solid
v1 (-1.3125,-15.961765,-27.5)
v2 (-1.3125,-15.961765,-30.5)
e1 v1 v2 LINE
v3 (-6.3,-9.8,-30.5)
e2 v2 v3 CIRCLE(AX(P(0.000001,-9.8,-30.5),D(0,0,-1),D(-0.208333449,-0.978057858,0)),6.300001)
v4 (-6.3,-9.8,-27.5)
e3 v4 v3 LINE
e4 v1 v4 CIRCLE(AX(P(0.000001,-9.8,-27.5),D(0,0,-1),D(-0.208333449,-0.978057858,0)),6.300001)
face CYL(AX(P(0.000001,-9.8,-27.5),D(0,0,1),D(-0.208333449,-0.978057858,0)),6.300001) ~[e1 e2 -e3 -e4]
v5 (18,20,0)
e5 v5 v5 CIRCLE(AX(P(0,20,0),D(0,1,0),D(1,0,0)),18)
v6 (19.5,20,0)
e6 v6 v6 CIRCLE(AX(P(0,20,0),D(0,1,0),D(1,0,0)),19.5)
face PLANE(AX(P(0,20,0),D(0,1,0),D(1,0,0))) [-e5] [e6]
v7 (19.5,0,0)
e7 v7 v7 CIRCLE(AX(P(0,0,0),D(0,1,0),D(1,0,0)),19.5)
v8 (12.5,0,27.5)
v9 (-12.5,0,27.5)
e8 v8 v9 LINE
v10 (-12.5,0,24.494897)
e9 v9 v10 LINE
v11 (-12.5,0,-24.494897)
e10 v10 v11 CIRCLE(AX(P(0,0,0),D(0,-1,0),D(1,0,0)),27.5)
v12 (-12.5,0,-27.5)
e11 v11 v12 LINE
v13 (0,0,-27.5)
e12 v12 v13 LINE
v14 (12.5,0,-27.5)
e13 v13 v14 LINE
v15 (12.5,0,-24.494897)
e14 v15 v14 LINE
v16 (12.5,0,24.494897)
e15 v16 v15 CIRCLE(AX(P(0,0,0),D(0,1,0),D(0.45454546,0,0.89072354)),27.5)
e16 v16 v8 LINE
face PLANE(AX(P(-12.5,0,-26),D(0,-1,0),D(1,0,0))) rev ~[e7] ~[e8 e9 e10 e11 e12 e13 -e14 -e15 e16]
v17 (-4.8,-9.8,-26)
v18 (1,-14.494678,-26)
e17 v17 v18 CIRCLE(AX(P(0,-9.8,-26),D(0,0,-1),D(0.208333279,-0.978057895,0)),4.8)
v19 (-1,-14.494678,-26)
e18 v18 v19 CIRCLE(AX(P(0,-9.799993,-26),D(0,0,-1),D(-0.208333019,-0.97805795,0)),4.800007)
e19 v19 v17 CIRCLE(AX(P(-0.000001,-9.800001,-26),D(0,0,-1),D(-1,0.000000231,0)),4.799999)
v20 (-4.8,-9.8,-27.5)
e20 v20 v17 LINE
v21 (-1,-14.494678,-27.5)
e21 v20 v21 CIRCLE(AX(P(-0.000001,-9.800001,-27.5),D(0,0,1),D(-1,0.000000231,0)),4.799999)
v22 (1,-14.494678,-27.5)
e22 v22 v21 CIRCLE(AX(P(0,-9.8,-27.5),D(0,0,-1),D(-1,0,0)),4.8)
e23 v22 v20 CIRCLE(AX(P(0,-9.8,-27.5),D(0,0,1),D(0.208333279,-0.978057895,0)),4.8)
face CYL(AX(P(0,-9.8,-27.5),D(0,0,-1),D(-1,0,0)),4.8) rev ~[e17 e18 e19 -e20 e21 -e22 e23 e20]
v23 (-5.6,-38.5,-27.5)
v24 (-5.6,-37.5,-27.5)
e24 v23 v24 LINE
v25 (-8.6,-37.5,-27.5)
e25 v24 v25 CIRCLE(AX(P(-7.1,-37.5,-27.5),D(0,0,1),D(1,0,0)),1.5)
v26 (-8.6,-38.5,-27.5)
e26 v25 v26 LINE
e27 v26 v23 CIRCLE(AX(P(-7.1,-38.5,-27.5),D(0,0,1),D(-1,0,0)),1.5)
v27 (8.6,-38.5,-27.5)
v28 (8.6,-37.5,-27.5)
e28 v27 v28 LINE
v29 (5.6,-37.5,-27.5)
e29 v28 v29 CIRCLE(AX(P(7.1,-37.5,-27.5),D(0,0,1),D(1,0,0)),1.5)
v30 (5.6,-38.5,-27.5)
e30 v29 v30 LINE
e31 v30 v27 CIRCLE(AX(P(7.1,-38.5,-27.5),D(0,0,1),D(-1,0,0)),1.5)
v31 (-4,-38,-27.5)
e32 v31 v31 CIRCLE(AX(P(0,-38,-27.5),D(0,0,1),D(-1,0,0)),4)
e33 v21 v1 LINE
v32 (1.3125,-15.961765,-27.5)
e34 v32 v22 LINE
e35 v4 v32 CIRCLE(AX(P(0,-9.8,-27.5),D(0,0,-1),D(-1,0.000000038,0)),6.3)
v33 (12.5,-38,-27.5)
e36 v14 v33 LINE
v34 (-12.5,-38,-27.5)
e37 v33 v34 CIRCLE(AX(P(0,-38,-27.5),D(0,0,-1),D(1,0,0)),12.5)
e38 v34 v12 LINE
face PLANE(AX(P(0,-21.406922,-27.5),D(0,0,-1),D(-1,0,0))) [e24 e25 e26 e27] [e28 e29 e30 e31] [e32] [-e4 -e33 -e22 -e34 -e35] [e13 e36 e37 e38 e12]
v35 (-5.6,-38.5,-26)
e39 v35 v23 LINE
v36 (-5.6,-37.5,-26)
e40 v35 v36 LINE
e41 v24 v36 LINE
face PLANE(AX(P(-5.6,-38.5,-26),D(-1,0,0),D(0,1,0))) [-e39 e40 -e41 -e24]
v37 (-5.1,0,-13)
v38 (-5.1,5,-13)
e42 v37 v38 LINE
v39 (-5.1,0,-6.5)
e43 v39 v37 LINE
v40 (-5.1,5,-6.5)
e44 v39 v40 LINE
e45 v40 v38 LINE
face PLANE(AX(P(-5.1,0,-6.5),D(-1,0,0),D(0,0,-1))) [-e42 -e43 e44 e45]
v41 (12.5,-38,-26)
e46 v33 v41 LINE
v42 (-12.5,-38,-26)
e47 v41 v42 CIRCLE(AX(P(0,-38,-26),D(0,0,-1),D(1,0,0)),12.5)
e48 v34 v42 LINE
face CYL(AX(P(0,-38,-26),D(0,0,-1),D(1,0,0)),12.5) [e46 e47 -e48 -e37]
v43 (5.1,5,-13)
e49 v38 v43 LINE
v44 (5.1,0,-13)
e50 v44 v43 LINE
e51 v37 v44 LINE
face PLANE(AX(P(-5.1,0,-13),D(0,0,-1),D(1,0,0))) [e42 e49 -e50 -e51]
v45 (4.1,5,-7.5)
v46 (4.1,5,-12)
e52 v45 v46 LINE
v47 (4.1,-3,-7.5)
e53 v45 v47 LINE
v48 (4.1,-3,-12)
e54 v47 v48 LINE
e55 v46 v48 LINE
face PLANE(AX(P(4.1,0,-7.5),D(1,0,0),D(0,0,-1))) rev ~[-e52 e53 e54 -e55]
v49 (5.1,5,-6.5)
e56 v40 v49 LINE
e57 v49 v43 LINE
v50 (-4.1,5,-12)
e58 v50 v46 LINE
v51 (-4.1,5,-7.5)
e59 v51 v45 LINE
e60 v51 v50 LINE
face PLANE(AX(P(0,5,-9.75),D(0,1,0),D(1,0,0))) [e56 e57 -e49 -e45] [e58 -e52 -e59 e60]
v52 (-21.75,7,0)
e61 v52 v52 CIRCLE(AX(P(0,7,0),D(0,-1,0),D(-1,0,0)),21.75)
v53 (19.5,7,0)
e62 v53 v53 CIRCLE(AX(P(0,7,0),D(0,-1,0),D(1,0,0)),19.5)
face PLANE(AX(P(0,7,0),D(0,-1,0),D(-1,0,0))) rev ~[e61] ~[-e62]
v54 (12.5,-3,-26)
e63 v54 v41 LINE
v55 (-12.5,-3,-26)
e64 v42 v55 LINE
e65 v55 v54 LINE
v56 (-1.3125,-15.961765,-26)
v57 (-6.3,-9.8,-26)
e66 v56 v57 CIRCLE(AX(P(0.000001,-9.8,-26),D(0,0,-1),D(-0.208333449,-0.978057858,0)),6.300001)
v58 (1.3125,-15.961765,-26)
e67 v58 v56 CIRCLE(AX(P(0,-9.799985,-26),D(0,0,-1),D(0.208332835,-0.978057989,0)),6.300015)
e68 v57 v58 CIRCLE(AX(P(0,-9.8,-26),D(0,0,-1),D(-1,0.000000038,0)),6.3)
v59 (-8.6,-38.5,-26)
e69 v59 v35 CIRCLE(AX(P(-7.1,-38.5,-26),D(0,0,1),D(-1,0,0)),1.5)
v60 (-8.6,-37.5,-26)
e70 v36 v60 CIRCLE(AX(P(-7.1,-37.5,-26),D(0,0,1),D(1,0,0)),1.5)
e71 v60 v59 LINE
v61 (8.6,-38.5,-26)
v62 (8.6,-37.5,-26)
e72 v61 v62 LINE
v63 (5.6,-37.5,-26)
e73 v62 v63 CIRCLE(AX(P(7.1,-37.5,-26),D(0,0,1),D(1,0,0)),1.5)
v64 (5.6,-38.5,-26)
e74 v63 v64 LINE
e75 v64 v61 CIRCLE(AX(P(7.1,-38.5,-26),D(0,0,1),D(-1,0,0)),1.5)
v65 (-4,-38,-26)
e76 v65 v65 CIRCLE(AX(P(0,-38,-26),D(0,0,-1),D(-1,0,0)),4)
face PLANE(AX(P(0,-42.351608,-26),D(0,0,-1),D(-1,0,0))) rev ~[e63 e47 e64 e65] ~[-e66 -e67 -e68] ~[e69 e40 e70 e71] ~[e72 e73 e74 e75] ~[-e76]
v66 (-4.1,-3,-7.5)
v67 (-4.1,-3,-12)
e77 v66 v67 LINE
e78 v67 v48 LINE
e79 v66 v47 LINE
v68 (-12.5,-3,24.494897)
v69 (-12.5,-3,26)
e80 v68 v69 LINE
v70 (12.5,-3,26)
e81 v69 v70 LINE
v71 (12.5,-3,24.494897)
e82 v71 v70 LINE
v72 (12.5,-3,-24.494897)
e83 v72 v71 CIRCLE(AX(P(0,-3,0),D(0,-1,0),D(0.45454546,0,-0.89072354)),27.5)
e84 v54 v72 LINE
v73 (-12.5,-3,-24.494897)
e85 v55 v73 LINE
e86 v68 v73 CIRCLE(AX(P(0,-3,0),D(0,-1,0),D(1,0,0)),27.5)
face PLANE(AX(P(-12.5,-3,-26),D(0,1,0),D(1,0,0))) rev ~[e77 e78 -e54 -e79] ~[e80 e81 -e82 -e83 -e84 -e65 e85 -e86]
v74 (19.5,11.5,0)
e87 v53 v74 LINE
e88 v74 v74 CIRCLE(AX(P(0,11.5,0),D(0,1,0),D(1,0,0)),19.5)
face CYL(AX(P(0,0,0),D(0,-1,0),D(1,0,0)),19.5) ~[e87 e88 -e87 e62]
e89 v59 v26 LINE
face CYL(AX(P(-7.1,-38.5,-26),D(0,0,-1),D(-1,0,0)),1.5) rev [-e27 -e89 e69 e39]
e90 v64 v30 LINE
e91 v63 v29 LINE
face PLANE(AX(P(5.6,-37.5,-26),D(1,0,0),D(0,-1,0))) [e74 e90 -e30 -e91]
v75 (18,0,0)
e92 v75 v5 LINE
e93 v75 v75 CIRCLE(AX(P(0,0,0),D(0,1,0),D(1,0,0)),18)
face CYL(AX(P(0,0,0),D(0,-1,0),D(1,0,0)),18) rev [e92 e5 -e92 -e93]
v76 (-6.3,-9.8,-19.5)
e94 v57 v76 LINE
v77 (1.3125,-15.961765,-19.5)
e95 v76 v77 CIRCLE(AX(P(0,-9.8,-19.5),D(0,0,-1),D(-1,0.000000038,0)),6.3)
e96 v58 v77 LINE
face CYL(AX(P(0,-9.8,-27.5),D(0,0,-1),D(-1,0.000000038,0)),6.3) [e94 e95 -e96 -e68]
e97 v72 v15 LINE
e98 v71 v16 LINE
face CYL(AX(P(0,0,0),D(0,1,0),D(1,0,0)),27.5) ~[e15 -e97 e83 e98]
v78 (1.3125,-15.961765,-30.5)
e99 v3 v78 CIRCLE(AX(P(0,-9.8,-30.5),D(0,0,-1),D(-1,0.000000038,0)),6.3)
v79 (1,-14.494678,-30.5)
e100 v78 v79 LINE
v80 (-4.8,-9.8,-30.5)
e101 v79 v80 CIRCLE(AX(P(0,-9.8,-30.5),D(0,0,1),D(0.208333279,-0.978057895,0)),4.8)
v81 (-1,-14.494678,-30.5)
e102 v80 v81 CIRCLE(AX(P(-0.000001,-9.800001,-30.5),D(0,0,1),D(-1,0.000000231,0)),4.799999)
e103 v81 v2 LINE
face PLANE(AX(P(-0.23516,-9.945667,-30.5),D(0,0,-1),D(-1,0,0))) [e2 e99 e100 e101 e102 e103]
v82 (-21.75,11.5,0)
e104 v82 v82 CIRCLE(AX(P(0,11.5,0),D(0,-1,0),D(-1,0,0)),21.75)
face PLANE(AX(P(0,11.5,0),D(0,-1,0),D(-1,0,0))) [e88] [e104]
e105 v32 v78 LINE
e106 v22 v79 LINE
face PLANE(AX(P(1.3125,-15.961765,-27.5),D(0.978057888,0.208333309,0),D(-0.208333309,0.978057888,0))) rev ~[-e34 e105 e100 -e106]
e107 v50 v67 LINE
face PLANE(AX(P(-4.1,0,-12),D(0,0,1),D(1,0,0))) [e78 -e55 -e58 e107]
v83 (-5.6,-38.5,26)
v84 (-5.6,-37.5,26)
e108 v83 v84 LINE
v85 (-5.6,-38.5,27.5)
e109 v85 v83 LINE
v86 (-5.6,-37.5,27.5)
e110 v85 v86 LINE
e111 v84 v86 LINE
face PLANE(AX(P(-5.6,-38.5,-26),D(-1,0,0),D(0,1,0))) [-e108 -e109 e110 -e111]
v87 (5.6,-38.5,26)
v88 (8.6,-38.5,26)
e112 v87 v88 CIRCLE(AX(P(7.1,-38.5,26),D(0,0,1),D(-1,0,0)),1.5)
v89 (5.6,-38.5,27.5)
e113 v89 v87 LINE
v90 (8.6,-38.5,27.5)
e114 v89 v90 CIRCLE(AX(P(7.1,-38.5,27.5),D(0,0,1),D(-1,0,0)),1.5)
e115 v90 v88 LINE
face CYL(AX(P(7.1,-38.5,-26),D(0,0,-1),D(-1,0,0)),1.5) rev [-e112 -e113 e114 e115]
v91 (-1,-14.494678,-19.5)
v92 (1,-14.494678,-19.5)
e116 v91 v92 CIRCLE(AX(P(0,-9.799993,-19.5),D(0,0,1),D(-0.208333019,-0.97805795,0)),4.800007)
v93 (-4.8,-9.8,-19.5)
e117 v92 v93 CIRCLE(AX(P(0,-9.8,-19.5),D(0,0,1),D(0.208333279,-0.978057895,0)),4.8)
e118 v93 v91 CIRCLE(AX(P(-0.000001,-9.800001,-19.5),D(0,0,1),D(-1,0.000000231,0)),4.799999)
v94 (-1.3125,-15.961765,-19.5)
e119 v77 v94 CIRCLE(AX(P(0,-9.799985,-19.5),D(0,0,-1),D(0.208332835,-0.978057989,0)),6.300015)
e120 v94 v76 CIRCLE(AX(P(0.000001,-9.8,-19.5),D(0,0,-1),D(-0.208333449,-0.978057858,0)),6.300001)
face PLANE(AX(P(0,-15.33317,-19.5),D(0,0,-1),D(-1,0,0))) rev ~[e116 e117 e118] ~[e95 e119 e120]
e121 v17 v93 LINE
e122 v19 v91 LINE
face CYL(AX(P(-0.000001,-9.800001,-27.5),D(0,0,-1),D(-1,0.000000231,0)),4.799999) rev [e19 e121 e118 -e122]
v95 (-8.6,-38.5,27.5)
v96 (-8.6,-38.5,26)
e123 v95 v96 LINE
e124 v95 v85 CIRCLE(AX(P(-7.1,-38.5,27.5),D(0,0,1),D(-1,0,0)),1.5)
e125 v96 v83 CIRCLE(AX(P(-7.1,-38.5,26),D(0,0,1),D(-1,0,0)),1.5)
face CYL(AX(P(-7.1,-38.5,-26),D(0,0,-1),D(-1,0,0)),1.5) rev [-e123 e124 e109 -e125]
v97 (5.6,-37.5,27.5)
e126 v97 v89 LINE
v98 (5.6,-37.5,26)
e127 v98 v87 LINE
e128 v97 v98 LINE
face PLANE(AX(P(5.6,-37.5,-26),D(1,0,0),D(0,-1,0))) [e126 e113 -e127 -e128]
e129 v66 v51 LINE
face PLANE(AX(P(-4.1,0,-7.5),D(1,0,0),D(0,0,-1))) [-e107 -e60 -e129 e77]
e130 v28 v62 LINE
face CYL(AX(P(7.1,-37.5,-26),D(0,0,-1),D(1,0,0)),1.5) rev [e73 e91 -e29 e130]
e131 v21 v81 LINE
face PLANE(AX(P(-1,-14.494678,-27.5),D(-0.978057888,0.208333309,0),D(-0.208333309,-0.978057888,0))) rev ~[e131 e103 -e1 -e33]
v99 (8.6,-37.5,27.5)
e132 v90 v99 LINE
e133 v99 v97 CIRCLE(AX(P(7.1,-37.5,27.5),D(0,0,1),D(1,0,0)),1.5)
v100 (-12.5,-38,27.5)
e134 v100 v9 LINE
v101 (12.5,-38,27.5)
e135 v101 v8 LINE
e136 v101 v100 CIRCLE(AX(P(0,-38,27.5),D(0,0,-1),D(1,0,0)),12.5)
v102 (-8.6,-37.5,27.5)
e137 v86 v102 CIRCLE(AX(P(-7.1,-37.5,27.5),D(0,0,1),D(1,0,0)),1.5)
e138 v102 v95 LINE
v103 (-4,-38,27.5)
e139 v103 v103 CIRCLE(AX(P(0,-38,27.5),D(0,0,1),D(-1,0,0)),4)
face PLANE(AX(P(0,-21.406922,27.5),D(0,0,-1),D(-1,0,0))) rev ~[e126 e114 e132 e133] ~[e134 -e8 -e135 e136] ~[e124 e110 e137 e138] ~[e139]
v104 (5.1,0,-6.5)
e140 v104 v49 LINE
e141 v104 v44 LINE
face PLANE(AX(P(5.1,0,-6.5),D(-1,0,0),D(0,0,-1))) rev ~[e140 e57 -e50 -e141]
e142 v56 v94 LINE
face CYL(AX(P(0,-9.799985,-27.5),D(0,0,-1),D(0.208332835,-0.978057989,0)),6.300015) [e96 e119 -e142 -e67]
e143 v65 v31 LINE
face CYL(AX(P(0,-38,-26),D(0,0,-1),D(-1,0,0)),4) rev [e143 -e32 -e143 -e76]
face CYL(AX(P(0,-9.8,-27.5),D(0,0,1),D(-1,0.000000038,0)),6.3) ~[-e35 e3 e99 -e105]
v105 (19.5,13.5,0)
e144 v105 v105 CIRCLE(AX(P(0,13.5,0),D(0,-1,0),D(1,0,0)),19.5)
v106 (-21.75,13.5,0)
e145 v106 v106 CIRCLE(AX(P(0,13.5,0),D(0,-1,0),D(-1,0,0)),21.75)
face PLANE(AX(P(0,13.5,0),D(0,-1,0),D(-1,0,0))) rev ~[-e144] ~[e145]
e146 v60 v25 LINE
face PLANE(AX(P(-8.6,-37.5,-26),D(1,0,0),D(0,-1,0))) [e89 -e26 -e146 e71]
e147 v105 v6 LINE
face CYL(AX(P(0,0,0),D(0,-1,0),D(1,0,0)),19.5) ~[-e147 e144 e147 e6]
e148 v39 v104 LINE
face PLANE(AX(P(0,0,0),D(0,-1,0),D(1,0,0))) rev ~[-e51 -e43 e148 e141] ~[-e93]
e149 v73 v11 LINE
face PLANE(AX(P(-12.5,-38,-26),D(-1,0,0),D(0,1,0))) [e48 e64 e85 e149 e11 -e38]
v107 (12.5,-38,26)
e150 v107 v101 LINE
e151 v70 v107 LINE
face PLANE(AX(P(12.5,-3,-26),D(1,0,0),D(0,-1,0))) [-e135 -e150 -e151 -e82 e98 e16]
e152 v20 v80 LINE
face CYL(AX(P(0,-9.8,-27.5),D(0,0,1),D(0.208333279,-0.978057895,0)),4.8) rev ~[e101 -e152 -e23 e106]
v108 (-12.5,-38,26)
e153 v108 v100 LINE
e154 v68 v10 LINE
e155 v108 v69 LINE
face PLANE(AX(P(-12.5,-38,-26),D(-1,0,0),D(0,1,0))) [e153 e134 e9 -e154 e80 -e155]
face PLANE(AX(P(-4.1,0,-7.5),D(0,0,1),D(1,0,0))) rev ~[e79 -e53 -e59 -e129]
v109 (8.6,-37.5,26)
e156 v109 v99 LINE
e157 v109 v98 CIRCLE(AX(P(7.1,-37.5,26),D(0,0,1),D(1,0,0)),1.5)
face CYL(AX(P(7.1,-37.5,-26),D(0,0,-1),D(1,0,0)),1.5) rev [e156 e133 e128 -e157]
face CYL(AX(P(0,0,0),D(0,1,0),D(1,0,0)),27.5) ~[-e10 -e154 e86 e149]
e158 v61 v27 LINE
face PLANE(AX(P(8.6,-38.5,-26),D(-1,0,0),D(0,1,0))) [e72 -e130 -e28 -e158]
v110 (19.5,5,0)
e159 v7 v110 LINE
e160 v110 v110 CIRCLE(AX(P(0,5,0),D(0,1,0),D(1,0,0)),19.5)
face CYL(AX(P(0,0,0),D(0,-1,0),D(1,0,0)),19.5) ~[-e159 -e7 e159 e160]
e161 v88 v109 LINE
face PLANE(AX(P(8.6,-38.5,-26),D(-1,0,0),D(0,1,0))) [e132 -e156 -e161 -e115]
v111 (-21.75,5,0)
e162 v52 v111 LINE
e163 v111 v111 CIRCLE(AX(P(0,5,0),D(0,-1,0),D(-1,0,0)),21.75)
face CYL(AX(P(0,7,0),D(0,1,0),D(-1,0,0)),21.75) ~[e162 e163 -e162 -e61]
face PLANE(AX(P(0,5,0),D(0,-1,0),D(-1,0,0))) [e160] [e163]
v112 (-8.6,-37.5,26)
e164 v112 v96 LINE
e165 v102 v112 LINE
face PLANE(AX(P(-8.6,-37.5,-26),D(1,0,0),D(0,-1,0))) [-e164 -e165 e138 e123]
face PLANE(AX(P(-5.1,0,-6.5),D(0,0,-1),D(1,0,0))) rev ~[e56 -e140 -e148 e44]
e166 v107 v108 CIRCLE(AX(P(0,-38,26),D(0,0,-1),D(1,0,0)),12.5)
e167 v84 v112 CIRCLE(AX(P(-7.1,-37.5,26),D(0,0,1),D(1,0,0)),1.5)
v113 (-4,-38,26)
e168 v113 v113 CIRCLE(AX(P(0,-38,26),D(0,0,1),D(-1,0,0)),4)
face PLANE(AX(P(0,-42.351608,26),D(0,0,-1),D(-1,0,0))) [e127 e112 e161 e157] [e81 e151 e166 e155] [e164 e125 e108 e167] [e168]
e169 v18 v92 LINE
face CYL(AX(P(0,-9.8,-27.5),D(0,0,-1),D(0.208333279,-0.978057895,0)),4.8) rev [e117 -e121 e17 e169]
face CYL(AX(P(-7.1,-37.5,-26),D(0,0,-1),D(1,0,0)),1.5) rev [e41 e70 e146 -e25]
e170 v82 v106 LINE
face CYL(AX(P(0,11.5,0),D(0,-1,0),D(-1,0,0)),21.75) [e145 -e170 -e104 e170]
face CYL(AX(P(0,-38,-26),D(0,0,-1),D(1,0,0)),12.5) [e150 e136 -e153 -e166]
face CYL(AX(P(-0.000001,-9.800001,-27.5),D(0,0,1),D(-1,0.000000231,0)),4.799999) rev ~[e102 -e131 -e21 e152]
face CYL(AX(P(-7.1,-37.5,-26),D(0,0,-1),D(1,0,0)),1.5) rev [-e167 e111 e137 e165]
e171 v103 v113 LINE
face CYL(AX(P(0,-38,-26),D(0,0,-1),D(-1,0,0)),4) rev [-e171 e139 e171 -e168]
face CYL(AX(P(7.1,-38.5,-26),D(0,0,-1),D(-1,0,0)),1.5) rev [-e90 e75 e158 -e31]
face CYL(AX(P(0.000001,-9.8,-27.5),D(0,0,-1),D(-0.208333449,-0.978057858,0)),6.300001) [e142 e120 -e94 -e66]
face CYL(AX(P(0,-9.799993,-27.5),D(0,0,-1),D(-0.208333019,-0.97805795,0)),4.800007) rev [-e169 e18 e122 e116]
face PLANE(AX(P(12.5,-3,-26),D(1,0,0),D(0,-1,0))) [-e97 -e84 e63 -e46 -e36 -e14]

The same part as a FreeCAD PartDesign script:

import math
import FreeCAD as App
import Part
import Sketcher

doc = App.newDocument("Part")
body = doc.addObject("PartDesign::Body", "Body")

# Sketch on XZ plane
sketch1 = body.newObject("Sketcher::SketchObject", "Sketch")
sketch1.AttachmentSupport = (doc.getObject("XZ_Plane"), [""])
sketch1.MapMode = "FlatFace"
sketch1.addGeometry([
    Part.Circle(App.Vector(0, 0, 0), App.Vector(0, 0, 1), 20),
    Part.Circle(App.Vector(0, 0, 0), App.Vector(0, 0, 1), 18),
], False)
sketch1.addConstraint([
    Sketcher.Constraint("Coincident", 0, 3, -1, 1),
    Sketcher.Constraint("Coincident", 1, 3, -1, 1),
    Sketcher.Constraint("Diameter", 0, 39.0),
    Sketcher.Constraint("Diameter", 1, 36.0),
])
pad1 = body.newObject("PartDesign::Pad", "Pad")
pad1.Profile = sketch1
pad1.Length = 20
pad1.Reversed = True

# Sketch on XZ plane
sketch2 = body.newObject("Sketcher::SketchObject", "Sketch001")
sketch2.AttachmentSupport = (doc.getObject("XZ_Plane"), [""])
sketch2.MapMode = "FlatFace"
sketch2.addGeometry(Part.Circle(App.Vector(0, 0, 0), App.Vector(0, 0, 1), 28), False)
sketch2.addConstraint([
    Sketcher.Constraint("Coincident", 0, 3, -1, 1),
    Sketcher.Constraint("Diameter", 0, 55.0),
])
pad2 = body.newObject("PartDesign::Pad", "Pad001")
pad2.Profile = sketch2
pad2.Length = 3

# Sketch on XZ plane
sketch3 = body.newObject("Sketcher::SketchObject", "Sketch002")
sketch3.AttachmentSupport = (doc.getObject("XZ_Plane"), [""])
sketch3.MapMode = "FlatFace"
sketch3.AttachmentOffset = App.Placement(App.Vector(0, 0, -7), App.Rotation())
sketch3.addGeometry([
    Part.Circle(App.Vector(0, 0, 0), App.Vector(0, 0, 1), 22),
    Part.Circle(App.Vector(0, 0, 0), App.Vector(0, 0, 1), 20),
], False)
sketch3.addConstraint([
    Sketcher.Constraint("Coincident", 0, 3, -1, 1),
    Sketcher.Constraint("Coincident", 1, 3, -1, 1),
    Sketcher.Constraint("Diameter", 1, 39.0),
    Sketcher.Constraint("Diameter", 0, 43.5),
])
pad3 = body.newObject("PartDesign::Pad", "Pad002")
pad3.Profile = sketch3
pad3.Length = 2

# Sketch on XZ plane
sketch4 = body.newObject("Sketcher::SketchObject", "Sketch003")
sketch4.AttachmentSupport = (doc.getObject("XZ_Plane"), [""])
sketch4.MapMode = "FlatFace"
sketch4.AttachmentOffset = App.Placement(App.Vector(0, 0, -11.5), App.Rotation())
sketch4.addGeometry([
    Part.Circle(App.Vector(0, 0, 0), App.Vector(0, 0, 1), 22),
    Part.Circle(App.Vector(0, 0, 0), App.Vector(0, 0, 1), 20),
], False)
sketch4.addConstraint([
    Sketcher.Constraint("Coincident", 0, 3, -1, 1),
    Sketcher.Constraint("Coincident", 1, 3, -1, 1),
    Sketcher.Constraint("Diameter", 1, 39.0),
    Sketcher.Constraint("Diameter", 0, 43.5),
])
pad4 = body.newObject("PartDesign::Pad", "Pad003")
pad4.Profile = sketch4
pad4.Length = 2
pad4.Reversed = True

# Sketch on XZ plane
sketch5 = body.newObject("Sketcher::SketchObject", "Sketch004")
sketch5.AttachmentSupport = (doc.getObject("XZ_Plane"), [""])
sketch5.MapMode = "FlatFace"
sketch5.AttachmentOffset = App.Placement(App.Vector(0, 0, 3), App.Rotation())
sketch5.addGeometry([
    Part.LineSegment(App.Vector(-12.5, 27.5, 0), App.Vector(-12.5, 24.5, 0)),  # 0
    Part.ArcOfCircle(Part.Circle(App.Vector(0, 0, 0), App.Vector(0, 0, 1), 27.5), math.radians(90), math.radians(117)),  # 1
    Part.LineSegment(App.Vector(0, 27.5, 0), App.Vector(-12.5, 27.5, 0)),  # 2
    Part.ArcOfCircle(Part.Circle(App.Vector(0, 0, 0), App.Vector(0, 0, 1), 27.5), math.radians(-117.04), math.radians(-109.01)),  # 3
    Part.LineSegment(App.Vector(-12.5, -24.5, 0), App.Vector(-12.5, -26, 0)),  # 4
    Part.LineSegment(App.Vector(-12.5, -26, 0), App.Vector(-9, -26, 0)),  # 5
    Part.ArcOfCircle(Part.Circle(App.Vector(0, 0, 0), App.Vector(0, 0, 1), 27.5), math.radians(63), math.radians(90)),  # 6
    Part.LineSegment(App.Vector(12.5, 24.5, 0), App.Vector(12.5, 27.5, 0)),  # 7
    Part.LineSegment(App.Vector(12.5, 27.5, 0), App.Vector(0, 27.5, 0)),  # 8
    Part.LineSegment(App.Vector(12.5, -26, 0), App.Vector(12.5, -24.5, 0)),  # 9
    Part.ArcOfCircle(Part.Circle(App.Vector(0, 0, 0), App.Vector(0, 0, 1), 27.5), math.radians(-70.99), math.radians(-62.96)),  # 10
    Part.LineSegment(App.Vector(9, -26, 0), App.Vector(12.5, -26, 0)),  # 11
], False)
sketch5.addConstraint([
    Sketcher.Constraint("Coincident", 0, 2, 1, 2),
    Sketcher.Constraint("Tangent", 1, 1, 2, 1),
    Sketcher.Constraint("Coincident", 2, 2, 0, 1),
    Sketcher.Constraint("Coincident", 3, 1, 4, 1),
    Sketcher.Constraint("Coincident", 4, 2, 5, 1),
    Sketcher.Constraint("Coincident", 5, 2, 3, 2),
    Sketcher.Constraint("Coincident", 6, 1, 7, 1),
    Sketcher.Constraint("Coincident", 7, 2, 8, 1),
    Sketcher.Constraint("Tangent", 8, 2, 6, 2),
    Sketcher.Constraint("Coincident", 9, 2, 10, 2),
    Sketcher.Constraint("Coincident", 10, 1, 11, 1),
    Sketcher.Constraint("Coincident", 11, 2, 9, 1),
    Sketcher.Constraint("Vertical", 0),
    Sketcher.Constraint("Horizontal", 2),
    Sketcher.Constraint("Vertical", 4),
    Sketcher.Constraint("Horizontal", 5),
    Sketcher.Constraint("Vertical", 7),
    Sketcher.Constraint("Horizontal", 8),
    Sketcher.Constraint("Vertical", 9),
    Sketcher.Constraint("Horizontal", 11),
    Sketcher.Constraint("Coincident", 1, 3, -1, 1),
    Sketcher.Constraint("Coincident", 6, 3, -1, 1),
    Sketcher.Constraint("Coincident", 3, 3, 1, 3),
    Sketcher.Constraint("Coincident", 10, 3, 1, 3),
    Sketcher.Constraint("Equal", 1, 6),
    Sketcher.Constraint("Equal", 3, 10),
    Sketcher.Constraint("Symmetric", 3, 1, 6, 1, -1, 1),
    Sketcher.Constraint("Symmetric", 4, 2, 11, 2, -2),
    Sketcher.Constraint("Horizontal", 0, 2, 6, 1),
    Sketcher.Constraint("DistanceX", 2, 2, 2, 1, 12.5),
    Sketcher.Constraint("DistanceY", 4, 2, -1, 1, 26.0),
    Sketcher.Constraint("DistanceY", -1, 1, 1, 1, 27.5),
])
pad5 = body.newObject("PartDesign::Pad", "Pad004")
pad5.Profile = sketch5
pad5.Length = 3
pad5.Reversed = True

# Sketch on XY plane
sketch6 = body.newObject("Sketcher::SketchObject", "Sketch005")
sketch6.AttachmentSupport = (doc.getObject("XY_Plane"), [""])
sketch6.MapMode = "FlatFace"
sketch6.AttachmentOffset = App.Placement(App.Vector(0, 0, -26), App.Rotation())
sketch6.addGeometry([
    Part.LineSegment(App.Vector(-12.5, -38, 0), App.Vector(-12.5, 0, 0)),  # 0
    Part.LineSegment(App.Vector(-12.5, 0, 0), App.Vector(12.5, 0, 0)),  # 1
    Part.LineSegment(App.Vector(12.5, 0, 0), App.Vector(12.5, -38, 0)),  # 2
    Part.ArcOfCircle(Part.Circle(App.Vector(0, -38, 0), App.Vector(0, 0, 1), 12.5), math.radians(180), math.radians(360)),  # 3
    Part.ArcOfCircle(Part.Circle(App.Vector(7.1, -37.5, 0), App.Vector(0, 0, 1), 1.5), math.radians(0), math.radians(180)),  # 4
    Part.LineSegment(App.Vector(5.6, -37.5, 0), App.Vector(5.6, -38.5, 0)),  # 5
    Part.ArcOfCircle(Part.Circle(App.Vector(7.1, -38.5, 0), App.Vector(0, 0, 1), 1.5), math.radians(180), math.radians(360)),  # 6
    Part.LineSegment(App.Vector(8.6, -38.5, 0), App.Vector(8.6, -37.5, 0)),  # 7
    Part.Circle(App.Vector(0, -38, 0), App.Vector(0, 0, 1), 4),  # 8
    Part.ArcOfCircle(Part.Circle(App.Vector(-7.1, -37.5, 0), App.Vector(0, 0, 1), 1.5), math.radians(0), math.radians(180)),  # 9
    Part.LineSegment(App.Vector(-8.6, -37.5, 0), App.Vector(-8.6, -38.5, 0)),  # 10
    Part.ArcOfCircle(Part.Circle(App.Vector(-7.1, -38.5, 0), App.Vector(0, 0, 1), 1.5), math.radians(180), math.radians(360)),  # 11
    Part.LineSegment(App.Vector(-5.6, -38.5, 0), App.Vector(-5.6, -37.5, 0)),  # 12
], False)
sketch6.addConstraint([
    Sketcher.Constraint("Coincident", 0, 2, 1, 1),
    Sketcher.Constraint("Coincident", 1, 2, 2, 1),
    Sketcher.Constraint("Tangent", 2, 2, 3, 2),
    Sketcher.Constraint("Tangent", 3, 1, 0, 1),
    Sketcher.Constraint("Tangent", 4, 2, 5, 1),
    Sketcher.Constraint("Tangent", 5, 2, 6, 1),
    Sketcher.Constraint("Tangent", 6, 2, 7, 1),
    Sketcher.Constraint("Tangent", 7, 2, 4, 1),
    Sketcher.Constraint("Tangent", 9, 2, 10, 1),
    Sketcher.Constraint("Tangent", 10, 2, 11, 1),
    Sketcher.Constraint("Tangent", 11, 2, 12, 1),
    Sketcher.Constraint("Tangent", 12, 2, 9, 1),
    Sketcher.Constraint("Vertical", 0),
    Sketcher.Constraint("Horizontal", 1),
    Sketcher.Constraint("Vertical", 2),
    Sketcher.Constraint("Vertical", 5),
    Sketcher.Constraint("Vertical", 7),
    Sketcher.Constraint("Vertical", 10),
    Sketcher.Constraint("Vertical", 12),
    Sketcher.Constraint("Coincident", 8, 3, 3, 3),
    Sketcher.Constraint("Equal", 6, 9),
    Sketcher.Constraint("Symmetric", 0, 2, 1, 2, -1, 1),
    Sketcher.Constraint("Symmetric", 4, 3, 9, 3, -2),
    Sketcher.Constraint("Horizontal", 6, 3, 11, 3),
    Sketcher.Constraint("Diameter", 8, 8.0),
    Sketcher.Constraint("Radius", 3, 12.5),
    Sketcher.Constraint("Radius", 4, 1.5),
    Sketcher.Constraint("DistanceY", 0, 1, 0, 2, 38.0),
    Sketcher.Constraint("DistanceY", 5, 2, 5, 1, 1.0),
    Sketcher.Constraint("DistanceX", -1, 1, 4, 3, 7.1),
    Sketcher.Constraint("DistanceY", 4, 3, -1, 1, 37.5),
])
pad6 = body.newObject("PartDesign::Pad", "Pad005")
pad6.Profile = sketch6
pad6.Length = 1.5
pad6.Reversed = True

# Sketch on XY plane
sketch7 = body.newObject("Sketcher::SketchObject", "Sketch006")
sketch7.AttachmentSupport = (doc.getObject("XY_Plane"), [""])
sketch7.MapMode = "FlatFace"
sketch7.AttachmentOffset = App.Placement(App.Vector(0, 0, -26), App.Rotation())
sketch7.addGeometry([
    Part.LineSegment(App.Vector(-12.5, -38, 0), App.Vector(-12.5, -3, 0)),  # 0
    Part.LineSegment(App.Vector(-12.5, -3, 0), App.Vector(12.5, -3, 0)),  # 1
    Part.LineSegment(App.Vector(12.5, -3, 0), App.Vector(12.5, -38, 0)),  # 2
    Part.ArcOfCircle(Part.Circle(App.Vector(0, -38, 0), App.Vector(0, 0, 1), 12.5), math.radians(180), math.radians(360)),  # 3
    Part.ArcOfCircle(Part.Circle(App.Vector(7.1, -37.5, 0), App.Vector(0, 0, 1), 1.5), math.radians(0), math.radians(180)),  # 4
    Part.LineSegment(App.Vector(5.6, -37.5, 0), App.Vector(5.6, -38.5, 0)),  # 5
    Part.ArcOfCircle(Part.Circle(App.Vector(7.1, -38.5, 0), App.Vector(0, 0, 1), 1.5), math.radians(180), math.radians(360)),  # 6
    Part.LineSegment(App.Vector(8.6, -38.5, 0), App.Vector(8.6, -37.5, 0)),  # 7
    Part.Circle(App.Vector(0, -38, 0), App.Vector(0, 0, 1), 4),  # 8
    Part.ArcOfCircle(Part.Circle(App.Vector(-7.1, -37.5, 0), App.Vector(0, 0, 1), 1.5), math.radians(0), math.radians(180)),  # 9
    Part.LineSegment(App.Vector(-8.6, -37.5, 0), App.Vector(-8.6, -38.5, 0)),  # 10
    Part.ArcOfCircle(Part.Circle(App.Vector(-7.1, -38.5, 0), App.Vector(0, 0, 1), 1.5), math.radians(180), math.radians(360)),  # 11
    Part.LineSegment(App.Vector(-5.6, -38.5, 0), App.Vector(-5.6, -37.5, 0)),  # 12
], False)
sketch7.addConstraint([
    Sketcher.Constraint("Coincident", 0, 2, 1, 1),
    Sketcher.Constraint("Coincident", 1, 2, 2, 1),
    Sketcher.Constraint("Tangent", 2, 2, 3, 2),
    Sketcher.Constraint("Tangent", 3, 1, 0, 1),
    Sketcher.Constraint("Tangent", 4, 2, 5, 1),
    Sketcher.Constraint("Tangent", 5, 2, 6, 1),
    Sketcher.Constraint("Tangent", 6, 2, 7, 1),
    Sketcher.Constraint("Tangent", 7, 2, 4, 1),
    Sketcher.Constraint("Tangent", 9, 2, 10, 1),
    Sketcher.Constraint("Tangent", 10, 2, 11, 1),
    Sketcher.Constraint("Tangent", 11, 2, 12, 1),
    Sketcher.Constraint("Tangent", 12, 2, 9, 1),
    Sketcher.Constraint("Vertical", 0),
    Sketcher.Constraint("Horizontal", 1),
    Sketcher.Constraint("Vertical", 2),
    Sketcher.Constraint("Vertical", 5),
    Sketcher.Constraint("Vertical", 7),
    Sketcher.Constraint("Vertical", 10),
    Sketcher.Constraint("Vertical", 12),
    Sketcher.Constraint("Coincident", 8, 3, 3, 3),
    Sketcher.Constraint("Equal", 6, 9),
    Sketcher.Constraint("Symmetric", 4, 3, 9, 3, -2),
    Sketcher.Constraint("PointOnObject", 3, 3, -2),
    Sketcher.Constraint("Horizontal", 6, 3, 11, 3),
    Sketcher.Constraint("Diameter", 8, 8.0),
    Sketcher.Constraint("Radius", 3, 12.5),
    Sketcher.Constraint("Radius", 4, 1.5),
    Sketcher.Constraint("DistanceY", 0, 1, 0, 2, 35.0),
    Sketcher.Constraint("DistanceY", 5, 2, 5, 1, 1.0),
    Sketcher.Constraint("DistanceY", 3, 3, -1, 1, 38.0),
    Sketcher.Constraint("DistanceX", -1, 1, 4, 3, 7.1),
    Sketcher.Constraint("DistanceY", 4, 3, -1, 1, 37.5),
])
pad7 = body.newObject("PartDesign::Pad", "Pad006")
pad7.Profile = sketch7
pad7.Length = 53.5

# Sketch on XY plane
sketch8 = body.newObject("Sketcher::SketchObject", "Sketch007")
sketch8.AttachmentSupport = (doc.getObject("XY_Plane"), [""])
sketch8.MapMode = "FlatFace"
sketch8.AttachmentOffset = App.Placement(App.Vector(0, 0, -26), App.Rotation())
sketch8.addGeometry([
    Part.ArcOfCircle(Part.Circle(App.Vector(0, -38, 0), App.Vector(0, 0, 1), 12.5), math.radians(180), math.radians(360)),  # 0
    Part.LineSegment(App.Vector(-12.5, -38, 0), App.Vector(-12.5, -3, 0)),  # 1
    Part.LineSegment(App.Vector(-12.5, -3, 0), App.Vector(12.5, -3, 0)),  # 2
    Part.LineSegment(App.Vector(12.5, -3, 0), App.Vector(12.5, -38, 0)),  # 3
    Part.ArcOfCircle(Part.Circle(App.Vector(-7.1, -38.5, 0), App.Vector(0, 0, 1), 1.5), math.radians(180), math.radians(360)),  # 4
    Part.LineSegment(App.Vector(-5.6, -38.5, 0), App.Vector(-5.6, -37.5, 0)),  # 5
    Part.ArcOfCircle(Part.Circle(App.Vector(-7.1, -37.5, 0), App.Vector(0, 0, 1), 1.5), math.radians(0), math.radians(180)),  # 6
    Part.LineSegment(App.Vector(-8.6, -37.5, 0), App.Vector(-8.6, -38.5, 0)),  # 7
    Part.Circle(App.Vector(0, -38, 0), App.Vector(0, 0, 1), 4),  # 8
    Part.ArcOfCircle(Part.Circle(App.Vector(7.1, -38.5, 0), App.Vector(0, 0, 1), 1.5), math.radians(180), math.radians(360)),  # 9
    Part.LineSegment(App.Vector(8.6, -38.5, 0), App.Vector(8.6, -37.5, 0)),  # 10
    Part.ArcOfCircle(Part.Circle(App.Vector(7.1, -37.5, 0), App.Vector(0, 0, 1), 1.5), math.radians(0), math.radians(180)),  # 11
    Part.LineSegment(App.Vector(5.6, -37.5, 0), App.Vector(5.6, -38.5, 0)),  # 12
], False)
sketch8.addConstraint([
    Sketcher.Constraint("Tangent", 0, 1, 1, 1),
    Sketcher.Constraint("Coincident", 1, 2, 2, 1),
    Sketcher.Constraint("Coincident", 2, 2, 3, 1),
    Sketcher.Constraint("Tangent", 3, 2, 0, 2),
    Sketcher.Constraint("Tangent", 4, 2, 5, 1),
    Sketcher.Constraint("Tangent", 5, 2, 6, 1),
    Sketcher.Constraint("Tangent", 6, 2, 7, 1),
    Sketcher.Constraint("Tangent", 7, 2, 4, 1),
    Sketcher.Constraint("Tangent", 9, 2, 10, 1),
    Sketcher.Constraint("Tangent", 10, 2, 11, 1),
    Sketcher.Constraint("Tangent", 11, 2, 12, 1),
    Sketcher.Constraint("Tangent", 12, 2, 9, 1),
    Sketcher.Constraint("Vertical", 1),
    Sketcher.Constraint("Horizontal", 2),
    Sketcher.Constraint("Vertical", 3),
    Sketcher.Constraint("Vertical", 5),
    Sketcher.Constraint("Vertical", 7),
    Sketcher.Constraint("Vertical", 10),
    Sketcher.Constraint("Vertical", 12),
    Sketcher.Constraint("Coincident", 8, 3, 0, 3),
    Sketcher.Constraint("Equal", 6, 9),
    Sketcher.Constraint("Symmetric", 4, 3, 9, 3, -2),
    Sketcher.Constraint("PointOnObject", 0, 3, -2),
    Sketcher.Constraint("Horizontal", 6, 3, 11, 3),
    Sketcher.Constraint("Diameter", 8, 8.0),
    Sketcher.Constraint("Radius", 0, 12.5),
    Sketcher.Constraint("Radius", 4, 1.5),
    Sketcher.Constraint("DistanceY", 1, 1, 1, 2, 35.0),
    Sketcher.Constraint("DistanceY", 5, 1, 5, 2, 1.0),
    Sketcher.Constraint("DistanceY", 0, 3, -1, 1, 38.0),
    Sketcher.Constraint("DistanceX", 4, 3, -1, 1, 7.1),
    Sketcher.Constraint("DistanceY", 4, 3, -1, 1, 38.5),
])
pocket1 = body.newObject("PartDesign::Pocket", "Pocket")
pocket1.Profile = sketch8
pocket1.Length = 52
pocket1.Reversed = True

# Sketch on XY plane
sketch9 = body.newObject("Sketcher::SketchObject", "Sketch008")
sketch9.AttachmentSupport = (doc.getObject("XY_Plane"), [""])
sketch9.MapMode = "FlatFace"
sketch9.AttachmentOffset = App.Placement(App.Vector(0, 0, -27.5), App.Rotation())
sketch9.addGeometry([
    Part.LineSegment(App.Vector(1.3, -16, 0), App.Vector(1, -14.5, 0)),  # 0
    Part.ArcOfCircle(Part.Circle(App.Vector(0, -9.8, 0), App.Vector(0, 0, 1), 4.8), math.radians(-78), math.radians(180)),  # 1
    Part.ArcOfCircle(Part.Circle(App.Vector(0, -9.8, 0), App.Vector(0, 0, 1), 4.8), math.radians(180), math.radians(258)),  # 2
    Part.LineSegment(App.Vector(-1, -14.5, 0), App.Vector(-1.3, -16, 0)),  # 3
    Part.ArcOfCircle(Part.Circle(App.Vector(0, -9.8, 0), App.Vector(0, 0, 1), 6.3), math.radians(-180), math.radians(-102)),  # 4
    Part.ArcOfCircle(Part.Circle(App.Vector(0, -9.8, 0), App.Vector(0, 0, 1), 6.3), math.radians(-78), math.radians(180)),  # 5
], False)
sketch9.addConstraint([
    Sketcher.Constraint("Coincident", 0, 2, 1, 1),
    Sketcher.Constraint("Tangent", 1, 2, 2, 1),
    Sketcher.Constraint("Coincident", 2, 2, 3, 1),
    Sketcher.Constraint("Coincident", 3, 2, 4, 2),
    Sketcher.Constraint("Tangent", 4, 1, 5, 2),
    Sketcher.Constraint("Coincident", 5, 1, 0, 1),
    Sketcher.Constraint("Coincident", 4, 3, 1, 3),
    Sketcher.Constraint("Equal", 1, 2),
    Sketcher.Constraint("Equal", 4, 5),
    Sketcher.Constraint("Symmetric", 0, 2, 2, 2, -2),
    Sketcher.Constraint("Horizontal", 5, 3, 1, 2),
    Sketcher.Constraint("Horizontal", 1, 2, 4, 1),
    Sketcher.Constraint("Horizontal", 3, 2, 5, 1),
    Sketcher.Constraint("Radius", 1, 4.8),
    Sketcher.Constraint("Radius", 4, 6.300001),
    Sketcher.Constraint("DistanceX", -1, 1, 0, 2, 1.0),
    Sketcher.Constraint("DistanceY", 1, 3, -1, 1, 9.8),
    Sketcher.Constraint("DistanceX", 3, 2, 5, 1, 2.625),
])
pad8 = body.newObject("PartDesign::Pad", "Pad007")
pad8.Profile = sketch9
pad8.Length = 3
pad8.Reversed = True

# Sketch on XY plane
sketch10 = body.newObject("Sketcher::SketchObject", "Sketch009")
sketch10.AttachmentSupport = (doc.getObject("XY_Plane"), [""])
sketch10.MapMode = "FlatFace"
sketch10.AttachmentOffset = App.Placement(App.Vector(0, 0, -27.5), App.Rotation())
sketch10.addGeometry([
    Part.ArcOfCircle(Part.Circle(App.Vector(0, -9.8, 0), App.Vector(0, 0, 1), 6.3), math.radians(-102), math.radians(-78)),  # 0
    Part.ArcOfCircle(Part.Circle(App.Vector(0, -9.8, 0), App.Vector(0, 0, 1), 6.3), math.radians(-180), math.radians(-102)),  # 1
    Part.ArcOfCircle(Part.Circle(App.Vector(0, -9.8, 0), App.Vector(0, 0, 1), 6.3), math.radians(-78), math.radians(180)),  # 2
    Part.ArcOfCircle(Part.Circle(App.Vector(0, -9.8, 0), App.Vector(0, 0, 1), 4.8), math.radians(-102), math.radians(-78)),  # 3
    Part.ArcOfCircle(Part.Circle(App.Vector(0, -9.8, 0), App.Vector(0, 0, 1), 4.8), math.radians(-78), math.radians(180)),  # 4
    Part.ArcOfCircle(Part.Circle(App.Vector(0, -9.8, 0), App.Vector(0, 0, 1), 4.8), math.radians(180), math.radians(258)),  # 5
], False)
sketch10.addConstraint([
    Sketcher.Constraint("Tangent", 0, 1, 1, 2),
    Sketcher.Constraint("Tangent", 1, 1, 2, 2),
    Sketcher.Constraint("Tangent", 2, 1, 0, 2),
    Sketcher.Constraint("Tangent", 3, 2, 4, 1),
    Sketcher.Constraint("Tangent", 4, 2, 5, 1),
    Sketcher.Constraint("Tangent", 5, 2, 3, 1),
    Sketcher.Constraint("Coincident", 3, 3, 0, 3),
    Sketcher.Constraint("Symmetric", 0, 1, 2, 1, -2),
    Sketcher.Constraint("Horizontal", 5, 3, 1, 1),
    Sketcher.Constraint("Horizontal", 1, 1, 4, 2),
    Sketcher.Constraint("Horizontal", 3, 2, 5, 2),
    Sketcher.Constraint("Radius", 1, 6.300001),
    Sketcher.Constraint("Radius", 4, 4.8),
    Sketcher.Constraint("DistanceX", -1, 1, 3, 2, 1.0),
    Sketcher.Constraint("DistanceY", 1, 3, -1, 1, 9.8),
    Sketcher.Constraint("DistanceX", 0, 1, 2, 1, 2.625),
])
pad9 = body.newObject("PartDesign::Pad", "Pad008")
pad9.Profile = sketch10
pad9.Length = 8

# Sketch on XY plane
sketch11 = body.newObject("Sketcher::SketchObject", "Sketch010")
sketch11.AttachmentSupport = (doc.getObject("XY_Plane"), [""])
sketch11.MapMode = "FlatFace"
sketch11.AttachmentOffset = App.Placement(App.Vector(0, 0, -27.5), App.Rotation())
sketch11.addGeometry(Part.Circle(App.Vector(0, -9.8, 0), App.Vector(0, 0, 1), 4.8), False)
sketch11.addConstraint([
    Sketcher.Constraint("PointOnObject", 0, 3, -2),
    Sketcher.Constraint("Diameter", 0, 9.6),
    Sketcher.Constraint("DistanceY", 0, 3, -1, 1, 9.8),
])
pocket2 = body.newObject("PartDesign::Pocket", "Pocket001")
pocket2.Profile = sketch11
pocket2.Length = 9.5
pocket2.Reversed = True

# Sketch on XZ plane
sketch12 = body.newObject("Sketcher::SketchObject", "Sketch011")
sketch12.AttachmentSupport = (doc.getObject("XZ_Plane"), [""])
sketch12.MapMode = "FlatFace"
sketch12.addGeometry([
    Part.LineSegment(App.Vector(-5.1, -13, 0), App.Vector(-5.1, -6.5, 0)),  # 0
    Part.LineSegment(App.Vector(-5.1, -6.5, 0), App.Vector(5.1, -6.5, 0)),  # 1
    Part.LineSegment(App.Vector(5.1, -6.5, 0), App.Vector(5.1, -13, 0)),  # 2
    Part.LineSegment(App.Vector(5.1, -13, 0), App.Vector(-5.1, -13, 0)),  # 3
    Part.LineSegment(App.Vector(4.1, -7.5, 0), App.Vector(-4.1, -7.5, 0)),  # 4
    Part.LineSegment(App.Vector(-4.1, -7.5, 0), App.Vector(-4.1, -12, 0)),  # 5
    Part.LineSegment(App.Vector(-4.1, -12, 0), App.Vector(4.1, -12, 0)),  # 6
    Part.LineSegment(App.Vector(4.1, -12, 0), App.Vector(4.1, -7.5, 0)),  # 7
], False)
sketch12.addConstraint([
    Sketcher.Constraint("Coincident", 0, 2, 1, 1),
    Sketcher.Constraint("Coincident", 1, 2, 2, 1),
    Sketcher.Constraint("Coincident", 2, 2, 3, 1),
    Sketcher.Constraint("Coincident", 3, 2, 0, 1),
    Sketcher.Constraint("Coincident", 4, 2, 5, 1),
    Sketcher.Constraint("Coincident", 5, 2, 6, 1),
    Sketcher.Constraint("Coincident", 6, 2, 7, 1),
    Sketcher.Constraint("Coincident", 7, 2, 4, 1),
    Sketcher.Constraint("Vertical", 0),
    Sketcher.Constraint("Horizontal", 1),
    Sketcher.Constraint("Vertical", 2),
    Sketcher.Constraint("Horizontal", 3),
    Sketcher.Constraint("Horizontal", 4),
    Sketcher.Constraint("Vertical", 5),
    Sketcher.Constraint("Horizontal", 6),
    Sketcher.Constraint("Vertical", 7),
    Sketcher.Constraint("DistanceX", 1, 1, 1, 2, 10.2),
    Sketcher.Constraint("DistanceX", 4, 2, 4, 1, 8.2),
    Sketcher.Constraint("DistanceY", 0, 1, 0, 2, 6.5),
    Sketcher.Constraint("DistanceY", 5, 2, 5, 1, 4.5),
    Sketcher.Constraint("DistanceY", 2, 2, -1, 1, 13.0),
    Sketcher.Constraint("DistanceY", 5, 2, -1, 1, 12.0),
    Sketcher.Constraint("DistanceX", 0, 2, 4, 2, 1.0),
    Sketcher.Constraint("DistanceX", 0, 2, -1, 1, 5.1),
])
pad10 = body.newObject("PartDesign::Pad", "Pad009")
pad10.Profile = sketch12
pad10.Length = 5
pad10.Reversed = True

# Sketch on XZ plane
sketch13 = body.newObject("Sketcher::SketchObject", "Sketch012")
sketch13.AttachmentSupport = (doc.getObject("XZ_Plane"), [""])
sketch13.MapMode = "FlatFace"
sketch13.addGeometry([
    Part.LineSegment(App.Vector(-4.1, -12, 0), App.Vector(-4.1, -7.5, 0)),
    Part.LineSegment(App.Vector(-4.1, -7.5, 0), App.Vector(4.1, -7.5, 0)),
    Part.LineSegment(App.Vector(4.1, -7.5, 0), App.Vector(4.1, -12, 0)),
    Part.LineSegment(App.Vector(4.1, -12, 0), App.Vector(-4.1, -12, 0)),
], False)
sketch13.addConstraint([
    Sketcher.Constraint("Coincident", 0, 2, 1, 1),
    Sketcher.Constraint("Coincident", 1, 2, 2, 1),
    Sketcher.Constraint("Coincident", 2, 2, 3, 1),
    Sketcher.Constraint("Coincident", 3, 2, 0, 1),
    Sketcher.Constraint("Vertical", 0),
    Sketcher.Constraint("Horizontal", 1),
    Sketcher.Constraint("Vertical", 2),
    Sketcher.Constraint("Horizontal", 3),
    Sketcher.Constraint("DistanceX", 1, 1, 1, 2, 8.2),
    Sketcher.Constraint("DistanceY", 0, 1, 0, 2, 4.5),
    Sketcher.Constraint("DistanceY", 2, 2, -1, 1, 12.0),
    Sketcher.Constraint("DistanceX", 0, 2, -1, 1, 4.1),
])
pocket3 = body.newObject("PartDesign::Pocket", "Pocket002")
pocket3.Profile = sketch13
pocket3.Length = 5
pocket3.Reversed = True

doc.recompute()
